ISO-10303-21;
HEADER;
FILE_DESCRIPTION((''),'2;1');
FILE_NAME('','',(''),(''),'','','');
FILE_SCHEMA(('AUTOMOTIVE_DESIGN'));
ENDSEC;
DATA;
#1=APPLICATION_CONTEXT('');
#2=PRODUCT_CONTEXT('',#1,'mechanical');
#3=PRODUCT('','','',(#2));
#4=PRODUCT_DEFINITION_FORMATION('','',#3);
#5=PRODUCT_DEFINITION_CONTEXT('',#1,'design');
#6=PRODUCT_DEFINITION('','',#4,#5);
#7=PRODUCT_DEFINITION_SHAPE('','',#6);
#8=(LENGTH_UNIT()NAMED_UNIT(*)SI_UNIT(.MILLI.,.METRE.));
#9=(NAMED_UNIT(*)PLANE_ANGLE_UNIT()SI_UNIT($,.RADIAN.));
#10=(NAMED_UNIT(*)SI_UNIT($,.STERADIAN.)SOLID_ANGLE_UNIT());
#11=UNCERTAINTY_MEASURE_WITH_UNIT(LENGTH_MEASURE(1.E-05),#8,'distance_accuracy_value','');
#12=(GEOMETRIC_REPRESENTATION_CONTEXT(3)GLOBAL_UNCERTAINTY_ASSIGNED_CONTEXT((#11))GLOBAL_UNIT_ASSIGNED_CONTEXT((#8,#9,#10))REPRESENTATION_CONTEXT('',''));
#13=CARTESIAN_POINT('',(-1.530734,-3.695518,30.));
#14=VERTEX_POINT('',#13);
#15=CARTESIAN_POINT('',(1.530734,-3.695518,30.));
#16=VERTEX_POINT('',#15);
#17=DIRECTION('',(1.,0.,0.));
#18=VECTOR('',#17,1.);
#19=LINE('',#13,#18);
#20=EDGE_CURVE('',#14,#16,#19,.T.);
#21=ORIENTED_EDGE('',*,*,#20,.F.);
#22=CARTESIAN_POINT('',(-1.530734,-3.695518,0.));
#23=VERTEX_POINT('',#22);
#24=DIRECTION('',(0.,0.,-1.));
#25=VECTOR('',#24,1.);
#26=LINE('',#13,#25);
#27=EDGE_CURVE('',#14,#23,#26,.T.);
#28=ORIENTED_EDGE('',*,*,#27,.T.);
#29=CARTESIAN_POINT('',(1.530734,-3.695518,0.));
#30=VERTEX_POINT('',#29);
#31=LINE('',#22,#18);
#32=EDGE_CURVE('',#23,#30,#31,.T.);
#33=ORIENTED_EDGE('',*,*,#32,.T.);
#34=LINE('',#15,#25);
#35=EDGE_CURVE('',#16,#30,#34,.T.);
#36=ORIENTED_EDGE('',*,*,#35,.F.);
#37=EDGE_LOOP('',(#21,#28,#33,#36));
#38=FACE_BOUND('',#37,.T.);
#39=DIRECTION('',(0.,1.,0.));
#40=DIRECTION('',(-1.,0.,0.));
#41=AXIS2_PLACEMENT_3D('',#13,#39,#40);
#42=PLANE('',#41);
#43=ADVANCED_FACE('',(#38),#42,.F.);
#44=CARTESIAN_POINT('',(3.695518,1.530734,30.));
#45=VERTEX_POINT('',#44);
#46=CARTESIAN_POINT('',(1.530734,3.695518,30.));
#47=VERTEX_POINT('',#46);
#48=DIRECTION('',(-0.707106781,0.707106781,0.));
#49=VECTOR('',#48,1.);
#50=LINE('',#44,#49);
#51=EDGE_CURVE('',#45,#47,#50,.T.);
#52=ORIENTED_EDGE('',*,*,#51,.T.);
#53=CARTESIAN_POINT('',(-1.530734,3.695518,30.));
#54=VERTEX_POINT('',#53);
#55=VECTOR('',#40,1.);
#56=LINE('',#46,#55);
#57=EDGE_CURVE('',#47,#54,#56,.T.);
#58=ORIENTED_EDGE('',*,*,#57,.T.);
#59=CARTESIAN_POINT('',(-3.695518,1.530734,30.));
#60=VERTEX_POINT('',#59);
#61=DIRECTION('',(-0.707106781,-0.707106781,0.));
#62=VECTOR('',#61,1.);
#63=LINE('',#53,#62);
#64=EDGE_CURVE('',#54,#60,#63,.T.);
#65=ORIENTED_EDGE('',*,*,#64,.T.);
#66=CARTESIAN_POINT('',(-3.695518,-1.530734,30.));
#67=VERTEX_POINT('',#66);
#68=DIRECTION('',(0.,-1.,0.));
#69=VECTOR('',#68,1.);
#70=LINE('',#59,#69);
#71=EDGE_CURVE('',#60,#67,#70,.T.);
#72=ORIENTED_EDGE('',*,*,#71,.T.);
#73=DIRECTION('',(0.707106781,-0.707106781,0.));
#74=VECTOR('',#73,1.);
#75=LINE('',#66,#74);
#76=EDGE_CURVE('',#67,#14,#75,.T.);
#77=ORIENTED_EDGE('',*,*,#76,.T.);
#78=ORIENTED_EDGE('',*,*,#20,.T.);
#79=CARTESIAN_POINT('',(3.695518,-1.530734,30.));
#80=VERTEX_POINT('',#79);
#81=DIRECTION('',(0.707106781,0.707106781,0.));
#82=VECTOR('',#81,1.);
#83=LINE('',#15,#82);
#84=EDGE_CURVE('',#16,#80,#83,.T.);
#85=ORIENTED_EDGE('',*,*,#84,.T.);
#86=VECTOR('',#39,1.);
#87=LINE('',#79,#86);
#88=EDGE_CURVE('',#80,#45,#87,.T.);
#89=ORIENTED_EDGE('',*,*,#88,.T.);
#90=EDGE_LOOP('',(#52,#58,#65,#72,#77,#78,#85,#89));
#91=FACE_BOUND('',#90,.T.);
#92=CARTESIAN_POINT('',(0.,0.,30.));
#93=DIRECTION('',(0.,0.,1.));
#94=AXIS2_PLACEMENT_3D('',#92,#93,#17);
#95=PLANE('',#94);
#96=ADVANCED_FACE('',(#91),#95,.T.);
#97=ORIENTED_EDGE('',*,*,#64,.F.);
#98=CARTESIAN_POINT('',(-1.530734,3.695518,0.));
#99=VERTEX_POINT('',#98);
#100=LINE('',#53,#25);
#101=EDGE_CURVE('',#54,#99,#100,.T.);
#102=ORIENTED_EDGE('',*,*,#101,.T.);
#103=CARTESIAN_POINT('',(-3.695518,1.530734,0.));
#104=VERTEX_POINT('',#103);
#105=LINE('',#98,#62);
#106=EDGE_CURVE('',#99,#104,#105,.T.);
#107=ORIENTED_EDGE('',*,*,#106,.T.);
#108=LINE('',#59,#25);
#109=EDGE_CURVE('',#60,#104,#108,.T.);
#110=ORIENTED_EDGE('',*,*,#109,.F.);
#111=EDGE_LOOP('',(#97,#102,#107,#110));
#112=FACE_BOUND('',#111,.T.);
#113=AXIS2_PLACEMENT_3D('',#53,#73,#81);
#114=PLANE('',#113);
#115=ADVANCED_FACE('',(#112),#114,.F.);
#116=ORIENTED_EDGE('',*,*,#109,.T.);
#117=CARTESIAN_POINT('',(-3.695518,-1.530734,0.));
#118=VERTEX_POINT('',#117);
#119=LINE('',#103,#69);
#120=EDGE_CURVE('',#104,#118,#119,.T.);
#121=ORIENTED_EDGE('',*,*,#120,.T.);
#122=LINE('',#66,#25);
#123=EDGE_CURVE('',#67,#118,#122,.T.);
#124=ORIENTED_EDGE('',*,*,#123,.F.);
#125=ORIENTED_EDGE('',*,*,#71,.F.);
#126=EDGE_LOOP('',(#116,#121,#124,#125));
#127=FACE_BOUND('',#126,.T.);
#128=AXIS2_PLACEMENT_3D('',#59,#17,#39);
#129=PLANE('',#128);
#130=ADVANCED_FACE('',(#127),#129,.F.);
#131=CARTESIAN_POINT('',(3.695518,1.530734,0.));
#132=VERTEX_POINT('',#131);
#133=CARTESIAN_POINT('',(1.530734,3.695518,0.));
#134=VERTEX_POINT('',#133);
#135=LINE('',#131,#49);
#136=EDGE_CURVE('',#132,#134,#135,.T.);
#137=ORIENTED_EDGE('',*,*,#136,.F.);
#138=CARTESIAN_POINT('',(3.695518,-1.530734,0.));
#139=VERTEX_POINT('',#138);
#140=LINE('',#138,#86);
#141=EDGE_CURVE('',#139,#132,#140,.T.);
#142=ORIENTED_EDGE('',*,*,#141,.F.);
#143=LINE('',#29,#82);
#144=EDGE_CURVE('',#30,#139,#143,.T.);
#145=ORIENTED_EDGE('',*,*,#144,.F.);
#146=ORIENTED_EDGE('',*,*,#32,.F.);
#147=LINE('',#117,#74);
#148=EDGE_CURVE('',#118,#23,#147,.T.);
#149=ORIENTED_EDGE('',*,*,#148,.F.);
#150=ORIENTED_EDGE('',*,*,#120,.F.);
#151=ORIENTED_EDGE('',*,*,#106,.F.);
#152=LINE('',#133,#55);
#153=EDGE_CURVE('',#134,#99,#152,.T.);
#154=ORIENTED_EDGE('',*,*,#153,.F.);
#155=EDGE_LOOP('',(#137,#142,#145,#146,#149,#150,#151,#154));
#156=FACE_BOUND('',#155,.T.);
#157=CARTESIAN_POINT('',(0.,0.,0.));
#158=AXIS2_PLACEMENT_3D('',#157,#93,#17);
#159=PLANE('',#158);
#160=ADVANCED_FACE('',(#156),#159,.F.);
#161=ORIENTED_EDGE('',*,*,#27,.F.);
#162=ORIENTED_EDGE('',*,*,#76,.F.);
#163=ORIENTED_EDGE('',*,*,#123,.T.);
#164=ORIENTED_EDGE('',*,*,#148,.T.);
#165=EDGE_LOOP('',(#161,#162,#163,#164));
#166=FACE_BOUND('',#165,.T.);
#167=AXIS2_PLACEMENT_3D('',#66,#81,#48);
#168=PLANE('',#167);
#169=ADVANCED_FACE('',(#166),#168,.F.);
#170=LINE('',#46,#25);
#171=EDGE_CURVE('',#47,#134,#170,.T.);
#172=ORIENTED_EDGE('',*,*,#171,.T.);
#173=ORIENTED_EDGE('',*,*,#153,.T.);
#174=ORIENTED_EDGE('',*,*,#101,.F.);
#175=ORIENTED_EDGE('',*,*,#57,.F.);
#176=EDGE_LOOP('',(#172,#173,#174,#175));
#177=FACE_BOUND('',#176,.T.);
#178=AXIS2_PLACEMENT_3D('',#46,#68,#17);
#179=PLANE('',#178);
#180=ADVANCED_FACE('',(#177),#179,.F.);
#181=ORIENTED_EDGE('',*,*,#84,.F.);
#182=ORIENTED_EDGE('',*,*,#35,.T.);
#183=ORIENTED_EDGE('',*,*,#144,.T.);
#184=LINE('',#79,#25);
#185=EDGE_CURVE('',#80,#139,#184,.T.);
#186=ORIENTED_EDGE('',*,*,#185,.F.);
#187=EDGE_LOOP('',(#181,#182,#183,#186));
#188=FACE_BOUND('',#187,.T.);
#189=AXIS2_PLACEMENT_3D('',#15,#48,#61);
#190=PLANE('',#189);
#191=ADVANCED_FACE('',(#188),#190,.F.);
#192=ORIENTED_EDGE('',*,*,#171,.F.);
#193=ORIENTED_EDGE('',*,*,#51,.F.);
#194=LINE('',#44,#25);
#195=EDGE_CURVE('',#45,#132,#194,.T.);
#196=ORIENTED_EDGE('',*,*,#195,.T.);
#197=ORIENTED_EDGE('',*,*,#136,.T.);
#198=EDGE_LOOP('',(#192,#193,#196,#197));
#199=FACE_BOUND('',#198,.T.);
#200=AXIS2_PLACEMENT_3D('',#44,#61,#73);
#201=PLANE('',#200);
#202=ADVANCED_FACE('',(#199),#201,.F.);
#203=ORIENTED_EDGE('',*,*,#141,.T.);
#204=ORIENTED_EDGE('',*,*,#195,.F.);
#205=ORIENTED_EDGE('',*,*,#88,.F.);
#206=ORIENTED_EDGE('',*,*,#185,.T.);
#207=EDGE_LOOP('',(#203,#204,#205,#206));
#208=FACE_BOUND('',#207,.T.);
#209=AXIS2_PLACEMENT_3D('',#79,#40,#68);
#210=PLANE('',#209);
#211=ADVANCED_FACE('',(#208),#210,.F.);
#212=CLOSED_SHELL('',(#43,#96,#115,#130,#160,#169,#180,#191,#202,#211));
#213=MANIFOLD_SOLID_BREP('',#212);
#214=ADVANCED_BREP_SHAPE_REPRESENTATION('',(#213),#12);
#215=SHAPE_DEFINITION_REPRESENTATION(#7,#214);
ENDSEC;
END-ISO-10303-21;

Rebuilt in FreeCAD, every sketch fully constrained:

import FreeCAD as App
import Part
import Sketcher

V = App.Vector
Q = App.Units.Quantity


def add_polygon(sketch, points):
    """Adds a closed chain of lines whose ends are joined by coincident constraints."""
    first, n = sketch.GeometryCount, len(points)
    for a, b in zip(points, points[1:] + points[:1]):
        sketch.addGeometry(Part.LineSegment(App.Vector(*a, 0), App.Vector(*b, 0)), False)
    for i in range(n):
        sketch.addConstraint(Sketcher.Constraint("Coincident", first + i, 2, first + (i + 1) % n, 1))

doc = App.newDocument("Part")
body = doc.addObject("PartDesign::Body", "Body")

sketch1 = doc.addObject("Sketcher::SketchObject", "Sketch")
body.addObject(sketch1)
sketch1.AttachmentSupport = (doc.XY_Plane, [""])
sketch1.MapMode = "FlatFace"
add_polygon(sketch1, [(1.5, 3.7), (-1.5, 3.7), (-3.7, 1.5), (-3.7, -1.5), (-1.5, -3.7), (1.5, -3.7), (3.7, -1.5), (3.7, 1.5)])
sketch1.addConstraint([
    Sketcher.Constraint("Horizontal", 0),
    Sketcher.Constraint("Vertical", 2),
    Sketcher.Constraint("Horizontal", 4),
    Sketcher.Constraint("Vertical", 6),
    Sketcher.Constraint("Symmetric", 0, 2, 4, 2, -1, 1),
    Sketcher.Constraint("Symmetric", 1, 2, 5, 2, -1, 1),
    Sketcher.Constraint("Perpendicular", 1, 3),
    Sketcher.Constraint("Perpendicular", 5, 7),
    Sketcher.Constraint("Horizontal", 2, 2, 5, 2),
    Sketcher.Constraint("Horizontal", 1, 2, 6, 2),
    Sketcher.Constraint("Vertical", 0, 2, 3, 2),
    Sketcher.Constraint("Equal", 4, 2),
    Sketcher.Constraint("DistanceX", 0, 2, 0, 1, Q("3.061467 mm")),
    Sketcher.Constraint("DistanceY", -1, 1, 0, 2, Q("3.695518 mm")),
])
pad1 = doc.addObject("PartDesign::Pad", "Pad")
body.addObject(pad1)
pad1.Profile = sketch1
pad1.Length = 30

doc.recompute()
